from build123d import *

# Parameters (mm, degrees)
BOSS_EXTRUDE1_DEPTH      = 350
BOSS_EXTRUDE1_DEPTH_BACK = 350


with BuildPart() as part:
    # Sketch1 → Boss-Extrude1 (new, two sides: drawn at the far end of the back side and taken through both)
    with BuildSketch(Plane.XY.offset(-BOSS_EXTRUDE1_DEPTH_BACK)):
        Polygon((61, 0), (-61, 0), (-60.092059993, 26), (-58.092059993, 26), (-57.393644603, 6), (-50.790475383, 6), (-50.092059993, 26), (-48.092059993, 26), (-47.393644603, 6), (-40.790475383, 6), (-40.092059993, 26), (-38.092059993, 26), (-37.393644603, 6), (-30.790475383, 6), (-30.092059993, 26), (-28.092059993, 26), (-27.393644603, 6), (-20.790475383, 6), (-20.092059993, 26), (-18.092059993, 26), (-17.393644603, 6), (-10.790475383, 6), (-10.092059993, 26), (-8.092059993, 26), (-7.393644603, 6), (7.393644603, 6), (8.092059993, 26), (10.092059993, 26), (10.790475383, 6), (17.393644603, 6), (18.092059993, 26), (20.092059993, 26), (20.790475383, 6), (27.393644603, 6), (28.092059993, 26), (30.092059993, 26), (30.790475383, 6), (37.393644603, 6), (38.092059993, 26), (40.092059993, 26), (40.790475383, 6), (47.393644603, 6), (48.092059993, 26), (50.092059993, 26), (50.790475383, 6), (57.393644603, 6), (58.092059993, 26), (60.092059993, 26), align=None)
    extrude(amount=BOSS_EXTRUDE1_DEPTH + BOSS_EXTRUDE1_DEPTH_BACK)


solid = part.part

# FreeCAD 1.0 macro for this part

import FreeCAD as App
import Part
import Sketcher

V = App.Vector
Q = App.Units.Quantity


def add_polygon(sketch, points):
    """Adds a closed chain of lines whose ends are joined by coincident constraints."""
    first, n = sketch.GeometryCount, len(points)
    for a, b in zip(points, points[1:] + points[:1]):
        sketch.addGeometry(Part.LineSegment(App.Vector(*a, 0), App.Vector(*b, 0)), False)
    for i in range(n):
        sketch.addConstraint(Sketcher.Constraint("Coincident", first + i, 2, first + (i + 1) % n, 1))

doc = App.newDocument("Part")
params = doc.addObject("Spreadsheet::Sheet", "Params")
for row, (alias, value) in enumerate([
    ("sketch1_width", "122 mm"),
    ("sketch1_width2", "2 mm"),
    ("pad1_length", "350 mm"),
    ("pad1_length2", "350 mm"),
], start=1):
    params.set(f"A{row}", alias)
    params.set(f"B{row}", "=" + value)
    params.setAlias(f"B{row}", alias)

body = doc.addObject("PartDesign::Body", "Body")

sketch1 = body.newObject("Sketcher::SketchObject", "Sketch")
sketch1.AttachmentSupport = (doc.getObject("XY_Plane"), [""])
sketch1.MapMode = "FlatFace"
add_polygon(sketch1, [(-61, 0), (61, 0), (60.09206, 26), (58.09206, 26), (57.393645, 6), (50.790475, 6), (50.09206, 26), (48.09206, 26), (47.393645, 6), (40.790475, 6), (40.09206, 26), (38.09206, 26), (37.393645, 6), (30.790475, 6), (30.09206, 26), (28.09206, 26), (27.393645, 6), (20.790475, 6), (20.09206, 26), (18.09206, 26), (17.393645, 6), (10.790475, 6), (10.09206, 26), (8.09206, 26), (7.393645, 6), (-7.393645, 6), (-8.09206, 26), (-10.09206, 26), (-10.790475, 6), (-17.393645, 6), (-18.09206, 26), (-20.09206, 26), (-20.790475, 6), (-27.393645, 6), (-28.09206, 26), (-30.09206, 26), (-30.790475, 6), (-37.393645, 6), (-38.09206, 26), (-40.09206, 26), (-40.790475, 6), (-47.393645, 6), (-48.09206, 26), (-50.09206, 26), (-50.790475, 6), (-57.393645, 6), (-58.09206, 26), (-60.09206, 26)])
sketch1.addConstraint(Sketcher.Constraint("Horizontal", 0))
sketch1.addConstraint(Sketcher.Constraint("Horizontal", 2))
sketch1.addConstraint(Sketcher.Constraint("Horizontal", 4))
sketch1.addConstraint(Sketcher.Constraint("Horizontal", 6))
sketch1.addConstraint(Sketcher.Constraint("Horizontal", 8))
sketch1.addConstraint(Sketcher.Constraint("Horizontal", 10))
sketch1.addConstraint(Sketcher.Constraint("Horizontal", 12))
sketch1.addConstraint(Sketcher.Constraint("Horizontal", 14))
sketch1.addConstraint(Sketcher.Constraint("Horizontal", 16))
sketch1.addConstraint(Sketcher.Constraint("Horizontal", 18))
sketch1.addConstraint(Sketcher.Constraint("Horizontal", 20))
sketch1.addConstraint(Sketcher.Constraint("Horizontal", 22))
sketch1.addConstraint(Sketcher.Constraint("Horizontal", 24))
sketch1.addConstraint(Sketcher.Constraint("Horizontal", 26))
sketch1.addConstraint(Sketcher.Constraint("Horizontal", 28))
sketch1.addConstraint(Sketcher.Constraint("Horizontal", 30))
sketch1.addConstraint(Sketcher.Constraint("Horizontal", 32))
sketch1.addConstraint(Sketcher.Constraint("Horizontal", 34))
sketch1.addConstraint(Sketcher.Constraint("Horizontal", 36))
sketch1.addConstraint(Sketcher.Constraint("Horizontal", 38))
sketch1.addConstraint(Sketcher.Constraint("Horizontal", 40))
sketch1.addConstraint(Sketcher.Constraint("Horizontal", 42))
sketch1.addConstraint(Sketcher.Constraint("Horizontal", 44))
sketch1.addConstraint(Sketcher.Constraint("Horizontal", 46))
sketch1.addConstraint(Sketcher.Constraint("Symmetric", 0, 2, 47, 2, -1, 1))
sketch1.addConstraint(Sketcher.Constraint("Symmetric", 22, 2, 25, 2, -2))
sketch1.addConstraint(Sketcher.Constraint("Symmetric", 20, 2, 27, 2, -2))
sketch1.addConstraint(Sketcher.Constraint("Symmetric", 18, 2, 29, 2, -2))
sketch1.addConstraint(Sketcher.Constraint("Symmetric", 16, 2, 31, 2, -2))
sketch1.addConstraint(Sketcher.Constraint("Symmetric", 14, 2, 33, 2, -2))
sketch1.addConstraint(Sketcher.Constraint("Symmetric", 12, 2, 35, 2, -2))
sketch1.addConstraint(Sketcher.Constraint("Symmetric", 10, 2, 37, 2, -2))
sketch1.addConstraint(Sketcher.Constraint("Symmetric", 8, 2, 39, 2, -2))
sketch1.addConstraint(Sketcher.Constraint("Symmetric", 6, 2, 41, 2, -2))
sketch1.addConstraint(Sketcher.Constraint("Symmetric", 4, 2, 43, 2, -2))
sketch1.addConstraint(Sketcher.Constraint("Symmetric", 2, 2, 45, 2, -2))
sketch1.addConstraint(Sketcher.Constraint("Parallel", 1, 5))
sketch1.addConstraint(Sketcher.Constraint("Parallel", 3, 7))
sketch1.addConstraint(Sketcher.Constraint("Parallel", 5, 9))
sketch1.addConstraint(Sketcher.Constraint("Parallel", 7, 11))
sketch1.addConstraint(Sketcher.Constraint("Parallel", 9, 13))
sketch1.addConstraint(Sketcher.Constraint("Parallel", 11, 15))
sketch1.addConstraint(Sketcher.Constraint("Parallel", 13, 17))
sketch1.addConstraint(Sketcher.Constraint("Parallel", 15, 19))
sketch1.addConstraint(Sketcher.Constraint("Parallel", 17, 21))
sketch1.addConstraint(Sketcher.Constraint("Parallel", 19, 23))
sketch1.addConstraint(Sketcher.Constraint("Parallel", 21, 25))
sketch1.addConstraint(Sketcher.Constraint("Parallel", 23, 27))
sketch1.addConstraint(Sketcher.Constraint("Parallel", 25, 29))
sketch1.addConstraint(Sketcher.Constraint("Parallel", 27, 31))
sketch1.addConstraint(Sketcher.Constraint("Parallel", 29, 33))
sketch1.addConstraint(Sketcher.Constraint("Parallel", 31, 35))
sketch1.addConstraint(Sketcher.Constraint("Parallel", 33, 37))
sketch1.addConstraint(Sketcher.Constraint("Parallel", 35, 39))
sketch1.addConstraint(Sketcher.Constraint("Parallel", 37, 41))
sketch1.addConstraint(Sketcher.Constraint("Parallel", 39, 43))
sketch1.addConstraint(Sketcher.Constraint("Parallel", 41, 45))
sketch1.addConstraint(Sketcher.Constraint("Parallel", 43, 47))
sketch1.addConstraint(Sketcher.Constraint("Horizontal", 2, 2, 5, 2))
sketch1.addConstraint(Sketcher.Constraint("Horizontal", 4, 2, 7, 2))
sketch1.addConstraint(Sketcher.Constraint("Horizontal", 6, 2, 9, 2))
sketch1.addConstraint(Sketcher.Constraint("Horizontal", 8, 2, 11, 2))
sketch1.addConstraint(Sketcher.Constraint("Horizontal", 10, 2, 13, 2))
sketch1.addConstraint(Sketcher.Constraint("Horizontal", 12, 2, 15, 2))
sketch1.addConstraint(Sketcher.Constraint("Horizontal", 14, 2, 17, 2))
sketch1.addConstraint(Sketcher.Constraint("Horizontal", 16, 2, 19, 2))
sketch1.addConstraint(Sketcher.Constraint("Horizontal", 18, 2, 21, 2))
sketch1.addConstraint(Sketcher.Constraint("Horizontal", 20, 2, 23, 2))
sketch1.addConstraint(Sketcher.Constraint("Equal", 2, 6))
sketch1.addConstraint(Sketcher.Constraint("Equal", 4, 8))
sketch1.addConstraint(Sketcher.Constraint("Equal", 6, 10))
sketch1.addConstraint(Sketcher.Constraint("Equal", 8, 12))
sketch1.addConstraint(Sketcher.Constraint("Equal", 10, 14))
sketch1.addConstraint(Sketcher.Constraint("Equal", 12, 16))
sketch1.addConstraint(Sketcher.Constraint("Equal", 14, 18))
sketch1.addConstraint(Sketcher.Constraint("Equal", 16, 20))
sketch1.addConstraint(Sketcher.Constraint("Equal", 18, 22))
sketch1.addConstraint(Sketcher.Constraint("Equal", 22, 26))
sketch1.addConstraint(Sketcher.Constraint("DistanceX", 0, 1, 0, 2, 122.0))
sketch1.addConstraint(Sketcher.Constraint("DistanceX", 2, 2, 2, 1, 2.0))
sketch1.addConstraint(Sketcher.Constraint("Angle", 1, Q("92 deg")))
sketch1.addConstraint(Sketcher.Constraint("DistanceY", -1, 1, 1, 2, 26.0))
sketch1.addConstraint(Sketcher.Constraint("DistanceY", -1, 1, 3, 2, 6.0))
sketch1.addConstraint(Sketcher.Constraint("DistanceX", 5, 2, 2, 2, 8.0))
sketch1.setExpression("Constraints[126]", "Params.sketch1_width")
sketch1.setExpression("Constraints[127]", "Params.sketch1_width2")
pad1 = body.newObject("PartDesign::Pad", "Pad")
pad1.Profile = sketch1
pad1.Type = "TwoLengths"
pad1.setExpression("Length", "Params.pad1_length")
pad1.setExpression("Length2", "Params.pad1_length2")

doc.recompute()
